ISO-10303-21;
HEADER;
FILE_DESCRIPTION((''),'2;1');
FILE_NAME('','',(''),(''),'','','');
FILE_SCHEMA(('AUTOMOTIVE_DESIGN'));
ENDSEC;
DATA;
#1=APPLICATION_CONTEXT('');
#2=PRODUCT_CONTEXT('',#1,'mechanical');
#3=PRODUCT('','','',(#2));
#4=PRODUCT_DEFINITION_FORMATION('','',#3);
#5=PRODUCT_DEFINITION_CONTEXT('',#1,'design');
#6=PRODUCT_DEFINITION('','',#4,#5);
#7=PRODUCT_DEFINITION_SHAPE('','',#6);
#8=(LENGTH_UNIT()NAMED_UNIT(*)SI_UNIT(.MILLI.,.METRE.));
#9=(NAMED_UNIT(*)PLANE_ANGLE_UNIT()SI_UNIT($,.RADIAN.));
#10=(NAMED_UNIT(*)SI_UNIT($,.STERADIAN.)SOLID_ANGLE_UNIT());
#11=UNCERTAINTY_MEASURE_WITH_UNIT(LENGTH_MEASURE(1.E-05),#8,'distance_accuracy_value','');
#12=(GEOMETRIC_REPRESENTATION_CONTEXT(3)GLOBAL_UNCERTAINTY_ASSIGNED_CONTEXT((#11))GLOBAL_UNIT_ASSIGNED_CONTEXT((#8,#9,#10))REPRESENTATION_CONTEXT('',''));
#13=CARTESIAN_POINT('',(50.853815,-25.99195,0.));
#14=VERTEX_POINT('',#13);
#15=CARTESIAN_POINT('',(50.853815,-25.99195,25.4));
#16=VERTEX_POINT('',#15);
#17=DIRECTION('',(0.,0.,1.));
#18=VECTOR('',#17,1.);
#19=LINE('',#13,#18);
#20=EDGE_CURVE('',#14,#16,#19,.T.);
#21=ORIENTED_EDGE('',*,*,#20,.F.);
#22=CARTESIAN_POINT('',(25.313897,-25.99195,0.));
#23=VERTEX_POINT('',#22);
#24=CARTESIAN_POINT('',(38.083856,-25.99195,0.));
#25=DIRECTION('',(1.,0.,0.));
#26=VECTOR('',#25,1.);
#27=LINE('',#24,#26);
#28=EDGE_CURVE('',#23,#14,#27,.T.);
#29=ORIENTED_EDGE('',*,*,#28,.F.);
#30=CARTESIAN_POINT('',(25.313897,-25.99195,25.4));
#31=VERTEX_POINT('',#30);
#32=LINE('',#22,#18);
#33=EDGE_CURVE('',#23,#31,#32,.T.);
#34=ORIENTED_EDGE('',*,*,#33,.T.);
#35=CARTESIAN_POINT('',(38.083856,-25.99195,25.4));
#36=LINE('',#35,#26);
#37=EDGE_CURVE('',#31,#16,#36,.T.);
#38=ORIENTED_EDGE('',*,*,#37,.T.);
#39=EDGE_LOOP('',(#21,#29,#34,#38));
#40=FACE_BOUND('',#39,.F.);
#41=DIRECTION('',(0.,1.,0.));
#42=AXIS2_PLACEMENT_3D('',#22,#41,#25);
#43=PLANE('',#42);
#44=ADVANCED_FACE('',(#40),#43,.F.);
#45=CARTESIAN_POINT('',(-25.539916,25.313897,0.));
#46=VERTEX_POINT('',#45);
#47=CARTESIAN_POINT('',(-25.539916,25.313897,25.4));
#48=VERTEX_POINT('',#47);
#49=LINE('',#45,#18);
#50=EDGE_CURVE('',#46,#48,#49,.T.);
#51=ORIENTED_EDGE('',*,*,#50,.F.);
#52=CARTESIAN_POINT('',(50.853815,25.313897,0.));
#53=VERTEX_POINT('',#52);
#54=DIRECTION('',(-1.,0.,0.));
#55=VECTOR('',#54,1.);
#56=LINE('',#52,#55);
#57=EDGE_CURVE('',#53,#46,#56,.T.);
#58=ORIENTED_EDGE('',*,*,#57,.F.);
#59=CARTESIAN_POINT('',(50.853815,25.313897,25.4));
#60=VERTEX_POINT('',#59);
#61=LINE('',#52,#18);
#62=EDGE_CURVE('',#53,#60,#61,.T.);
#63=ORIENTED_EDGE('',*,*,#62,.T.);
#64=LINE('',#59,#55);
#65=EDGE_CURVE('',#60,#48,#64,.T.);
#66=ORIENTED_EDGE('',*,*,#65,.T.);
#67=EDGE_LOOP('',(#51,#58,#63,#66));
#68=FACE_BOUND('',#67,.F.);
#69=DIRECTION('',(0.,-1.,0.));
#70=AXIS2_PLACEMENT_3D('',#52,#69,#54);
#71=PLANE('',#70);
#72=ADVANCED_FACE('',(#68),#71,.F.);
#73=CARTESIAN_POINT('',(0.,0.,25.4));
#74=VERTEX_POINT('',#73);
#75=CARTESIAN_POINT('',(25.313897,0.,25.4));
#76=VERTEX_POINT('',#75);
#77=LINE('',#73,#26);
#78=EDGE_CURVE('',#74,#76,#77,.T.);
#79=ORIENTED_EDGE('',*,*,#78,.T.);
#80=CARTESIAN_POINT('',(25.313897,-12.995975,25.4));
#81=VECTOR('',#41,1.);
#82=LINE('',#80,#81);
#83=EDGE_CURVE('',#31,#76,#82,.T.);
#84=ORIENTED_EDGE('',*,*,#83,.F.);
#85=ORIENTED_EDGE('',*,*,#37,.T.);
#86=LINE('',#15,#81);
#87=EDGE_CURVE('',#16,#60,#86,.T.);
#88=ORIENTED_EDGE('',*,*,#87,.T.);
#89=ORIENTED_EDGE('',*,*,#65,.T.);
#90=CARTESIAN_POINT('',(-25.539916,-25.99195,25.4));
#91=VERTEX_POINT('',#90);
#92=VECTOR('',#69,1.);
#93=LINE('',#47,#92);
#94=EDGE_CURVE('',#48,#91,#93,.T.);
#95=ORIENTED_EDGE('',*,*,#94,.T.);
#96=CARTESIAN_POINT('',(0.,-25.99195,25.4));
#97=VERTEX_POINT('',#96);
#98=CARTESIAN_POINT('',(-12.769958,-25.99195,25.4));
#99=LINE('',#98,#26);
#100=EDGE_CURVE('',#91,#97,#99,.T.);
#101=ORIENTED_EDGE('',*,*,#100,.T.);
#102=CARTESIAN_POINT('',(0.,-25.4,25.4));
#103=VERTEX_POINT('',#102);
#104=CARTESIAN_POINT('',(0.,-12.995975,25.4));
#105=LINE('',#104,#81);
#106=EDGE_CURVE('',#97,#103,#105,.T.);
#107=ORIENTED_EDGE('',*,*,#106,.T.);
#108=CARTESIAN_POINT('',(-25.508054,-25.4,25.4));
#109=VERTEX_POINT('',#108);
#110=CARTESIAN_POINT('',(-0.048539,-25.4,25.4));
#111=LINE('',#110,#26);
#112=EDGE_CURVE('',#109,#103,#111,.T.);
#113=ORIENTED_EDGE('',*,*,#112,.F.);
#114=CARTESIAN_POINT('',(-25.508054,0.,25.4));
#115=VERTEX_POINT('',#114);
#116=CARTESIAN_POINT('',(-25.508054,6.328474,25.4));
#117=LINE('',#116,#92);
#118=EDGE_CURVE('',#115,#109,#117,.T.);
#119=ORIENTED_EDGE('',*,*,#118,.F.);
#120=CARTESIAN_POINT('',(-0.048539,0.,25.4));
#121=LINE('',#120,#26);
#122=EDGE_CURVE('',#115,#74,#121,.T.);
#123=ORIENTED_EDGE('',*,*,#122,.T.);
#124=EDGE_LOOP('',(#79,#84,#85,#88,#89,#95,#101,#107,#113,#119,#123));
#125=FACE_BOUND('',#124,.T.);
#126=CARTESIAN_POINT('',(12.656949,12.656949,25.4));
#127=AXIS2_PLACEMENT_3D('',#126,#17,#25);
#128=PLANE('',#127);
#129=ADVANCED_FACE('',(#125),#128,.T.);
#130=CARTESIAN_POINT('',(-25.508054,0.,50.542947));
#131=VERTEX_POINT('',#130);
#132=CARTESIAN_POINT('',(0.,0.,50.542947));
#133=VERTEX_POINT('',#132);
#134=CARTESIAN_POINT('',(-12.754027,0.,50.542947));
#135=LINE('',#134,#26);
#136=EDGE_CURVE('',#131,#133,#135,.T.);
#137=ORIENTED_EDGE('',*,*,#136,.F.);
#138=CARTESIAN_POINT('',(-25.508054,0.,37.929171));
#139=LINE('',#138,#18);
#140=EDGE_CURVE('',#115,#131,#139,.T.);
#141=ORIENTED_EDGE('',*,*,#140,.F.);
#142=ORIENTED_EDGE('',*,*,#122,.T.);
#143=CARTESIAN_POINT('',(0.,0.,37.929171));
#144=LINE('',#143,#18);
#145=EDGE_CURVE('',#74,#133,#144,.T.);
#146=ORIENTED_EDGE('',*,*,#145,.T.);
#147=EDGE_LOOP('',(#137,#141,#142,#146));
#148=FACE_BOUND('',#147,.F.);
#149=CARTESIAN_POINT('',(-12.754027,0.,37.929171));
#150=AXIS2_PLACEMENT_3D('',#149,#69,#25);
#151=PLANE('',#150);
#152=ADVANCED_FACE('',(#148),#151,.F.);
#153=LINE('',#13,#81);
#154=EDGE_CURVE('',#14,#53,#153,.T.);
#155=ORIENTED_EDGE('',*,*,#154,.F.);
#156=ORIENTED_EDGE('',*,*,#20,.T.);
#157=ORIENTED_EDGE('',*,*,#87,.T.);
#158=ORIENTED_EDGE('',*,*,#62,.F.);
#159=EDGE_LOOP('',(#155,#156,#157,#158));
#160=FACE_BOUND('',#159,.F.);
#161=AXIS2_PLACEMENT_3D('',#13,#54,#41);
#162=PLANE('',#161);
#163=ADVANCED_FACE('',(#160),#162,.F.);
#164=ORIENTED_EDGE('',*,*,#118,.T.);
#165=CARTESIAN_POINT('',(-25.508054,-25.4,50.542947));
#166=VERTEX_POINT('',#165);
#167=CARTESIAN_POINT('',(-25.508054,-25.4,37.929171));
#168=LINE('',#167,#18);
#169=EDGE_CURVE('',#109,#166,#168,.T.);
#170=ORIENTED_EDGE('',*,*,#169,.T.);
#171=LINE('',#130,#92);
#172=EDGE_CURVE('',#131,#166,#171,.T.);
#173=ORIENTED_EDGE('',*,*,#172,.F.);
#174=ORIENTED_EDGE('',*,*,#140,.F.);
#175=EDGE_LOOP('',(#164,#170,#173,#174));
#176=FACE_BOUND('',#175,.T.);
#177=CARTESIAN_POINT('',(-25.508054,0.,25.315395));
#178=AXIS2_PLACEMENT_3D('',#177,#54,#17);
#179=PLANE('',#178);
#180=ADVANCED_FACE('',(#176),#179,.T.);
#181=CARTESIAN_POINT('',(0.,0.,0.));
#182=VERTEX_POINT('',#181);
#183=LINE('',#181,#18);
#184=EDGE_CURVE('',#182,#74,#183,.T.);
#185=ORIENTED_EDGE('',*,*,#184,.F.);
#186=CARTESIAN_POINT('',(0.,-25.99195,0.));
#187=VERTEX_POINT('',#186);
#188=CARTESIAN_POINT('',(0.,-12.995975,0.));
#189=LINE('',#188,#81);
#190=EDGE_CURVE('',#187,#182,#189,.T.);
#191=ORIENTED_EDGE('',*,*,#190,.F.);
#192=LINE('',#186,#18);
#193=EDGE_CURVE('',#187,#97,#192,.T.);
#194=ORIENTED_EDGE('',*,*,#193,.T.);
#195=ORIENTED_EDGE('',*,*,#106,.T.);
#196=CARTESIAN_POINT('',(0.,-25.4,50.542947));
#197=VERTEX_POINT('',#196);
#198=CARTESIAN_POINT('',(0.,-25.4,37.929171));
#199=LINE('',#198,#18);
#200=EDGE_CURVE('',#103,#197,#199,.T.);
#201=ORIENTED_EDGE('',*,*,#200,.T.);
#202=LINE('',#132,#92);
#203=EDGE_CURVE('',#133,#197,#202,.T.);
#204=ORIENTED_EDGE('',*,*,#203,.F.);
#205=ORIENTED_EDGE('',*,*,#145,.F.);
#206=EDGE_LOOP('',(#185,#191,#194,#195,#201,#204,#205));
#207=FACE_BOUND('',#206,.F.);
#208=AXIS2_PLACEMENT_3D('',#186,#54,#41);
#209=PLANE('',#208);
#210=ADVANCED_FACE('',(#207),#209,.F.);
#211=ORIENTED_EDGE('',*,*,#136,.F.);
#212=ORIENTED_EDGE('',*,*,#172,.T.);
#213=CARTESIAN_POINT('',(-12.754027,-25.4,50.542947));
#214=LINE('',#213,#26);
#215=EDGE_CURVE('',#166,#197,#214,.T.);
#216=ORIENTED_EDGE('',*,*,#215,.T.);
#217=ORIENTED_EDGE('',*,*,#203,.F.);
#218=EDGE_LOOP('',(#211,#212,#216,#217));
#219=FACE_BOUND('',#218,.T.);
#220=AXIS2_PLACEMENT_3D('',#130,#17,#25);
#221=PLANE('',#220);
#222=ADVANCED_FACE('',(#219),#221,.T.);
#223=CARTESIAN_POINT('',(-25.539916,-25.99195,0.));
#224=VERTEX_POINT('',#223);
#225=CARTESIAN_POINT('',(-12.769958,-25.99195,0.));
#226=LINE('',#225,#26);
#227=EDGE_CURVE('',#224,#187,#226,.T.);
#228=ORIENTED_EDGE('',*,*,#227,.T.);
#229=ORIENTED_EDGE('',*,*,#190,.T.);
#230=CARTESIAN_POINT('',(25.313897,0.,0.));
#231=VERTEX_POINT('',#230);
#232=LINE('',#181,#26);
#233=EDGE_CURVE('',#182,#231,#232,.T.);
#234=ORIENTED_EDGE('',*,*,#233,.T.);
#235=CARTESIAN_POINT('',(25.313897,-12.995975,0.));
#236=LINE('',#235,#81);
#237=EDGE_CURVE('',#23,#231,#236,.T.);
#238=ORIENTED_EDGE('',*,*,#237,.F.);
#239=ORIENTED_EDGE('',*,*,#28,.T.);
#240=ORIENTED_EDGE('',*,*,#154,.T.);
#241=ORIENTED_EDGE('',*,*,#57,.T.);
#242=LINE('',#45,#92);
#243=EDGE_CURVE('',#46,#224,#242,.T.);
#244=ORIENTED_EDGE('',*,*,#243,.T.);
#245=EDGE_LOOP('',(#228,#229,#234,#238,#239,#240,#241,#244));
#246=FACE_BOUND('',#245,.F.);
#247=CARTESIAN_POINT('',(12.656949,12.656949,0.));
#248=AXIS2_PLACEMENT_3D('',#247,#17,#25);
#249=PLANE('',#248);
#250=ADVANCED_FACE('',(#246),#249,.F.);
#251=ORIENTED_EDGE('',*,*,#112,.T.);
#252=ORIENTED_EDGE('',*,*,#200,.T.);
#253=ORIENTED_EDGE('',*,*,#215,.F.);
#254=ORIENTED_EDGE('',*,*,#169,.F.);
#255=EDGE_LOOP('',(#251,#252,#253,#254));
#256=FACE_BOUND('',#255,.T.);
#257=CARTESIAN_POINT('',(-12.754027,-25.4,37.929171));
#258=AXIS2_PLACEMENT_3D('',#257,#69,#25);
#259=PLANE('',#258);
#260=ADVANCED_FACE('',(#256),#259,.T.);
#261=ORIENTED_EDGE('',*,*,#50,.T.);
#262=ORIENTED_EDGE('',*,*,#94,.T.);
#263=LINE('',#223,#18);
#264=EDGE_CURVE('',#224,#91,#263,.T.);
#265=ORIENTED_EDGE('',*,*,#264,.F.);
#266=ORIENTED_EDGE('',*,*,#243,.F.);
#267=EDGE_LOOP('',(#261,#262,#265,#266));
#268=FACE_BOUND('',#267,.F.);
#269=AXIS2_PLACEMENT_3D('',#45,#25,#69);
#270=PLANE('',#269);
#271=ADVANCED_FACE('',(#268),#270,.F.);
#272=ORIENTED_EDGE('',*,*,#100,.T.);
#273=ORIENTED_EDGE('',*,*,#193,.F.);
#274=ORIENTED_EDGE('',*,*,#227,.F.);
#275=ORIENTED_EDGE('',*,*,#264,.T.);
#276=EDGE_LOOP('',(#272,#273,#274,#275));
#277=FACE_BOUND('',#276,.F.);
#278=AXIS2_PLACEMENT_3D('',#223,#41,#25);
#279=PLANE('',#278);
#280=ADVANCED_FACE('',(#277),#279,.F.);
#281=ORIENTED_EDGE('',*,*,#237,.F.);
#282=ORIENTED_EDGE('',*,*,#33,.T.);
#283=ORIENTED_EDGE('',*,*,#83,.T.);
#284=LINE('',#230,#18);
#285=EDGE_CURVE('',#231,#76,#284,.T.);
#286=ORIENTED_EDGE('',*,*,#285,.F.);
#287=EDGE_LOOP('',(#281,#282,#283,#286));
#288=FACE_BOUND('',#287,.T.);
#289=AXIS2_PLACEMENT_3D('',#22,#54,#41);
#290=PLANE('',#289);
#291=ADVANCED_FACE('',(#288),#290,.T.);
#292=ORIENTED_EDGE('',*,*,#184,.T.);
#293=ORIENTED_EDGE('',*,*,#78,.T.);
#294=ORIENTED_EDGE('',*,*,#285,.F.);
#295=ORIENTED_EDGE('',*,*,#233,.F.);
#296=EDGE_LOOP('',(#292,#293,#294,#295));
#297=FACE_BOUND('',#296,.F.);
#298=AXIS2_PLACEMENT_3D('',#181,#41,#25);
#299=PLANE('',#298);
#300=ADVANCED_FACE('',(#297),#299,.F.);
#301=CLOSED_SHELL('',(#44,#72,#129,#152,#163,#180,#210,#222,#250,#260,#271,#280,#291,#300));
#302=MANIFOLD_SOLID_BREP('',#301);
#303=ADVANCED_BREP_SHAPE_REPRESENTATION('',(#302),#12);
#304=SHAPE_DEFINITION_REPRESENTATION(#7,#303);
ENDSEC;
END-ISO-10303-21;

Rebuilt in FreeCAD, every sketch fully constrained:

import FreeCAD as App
import Part
import Sketcher

V = App.Vector
Q = App.Units.Quantity

doc = App.newDocument("Part")
params = doc.addObject("Spreadsheet::Sheet", "Params")
for row, (alias, value) in enumerate([
    ("pad1_length", "1 in"),
    ("pad2_length", "1 in"),
], start=1):
    params.set(f"A{row}", alias)
    params.set(f"B{row}", "=" + value)
    params.setAlias(f"B{row}", alias)

body = doc.addObject("PartDesign::Body", "Body")

sketch1 = doc.addObject("Sketcher::SketchObject", "Sketch")
body.addObject(sketch1)
sketch1.AttachmentSupport = (doc.XY_Plane, [""])
sketch1.MapMode = "FlatFace"
sketch1.addGeometry(Part.LineSegment(V(0, 0, 0), V(25, 0, 0)), False)
sketch1.addGeometry(Part.LineSegment(V(25, 0, 0), V(25, -26, 0)), False)
sketch1.addGeometry(Part.LineSegment(V(25, -26, 0), V(51, -26, 0)), False)
sketch1.addGeometry(Part.LineSegment(V(51, -26, 0), V(51, 25, 0)), False)
sketch1.addGeometry(Part.LineSegment(V(51, 25, 0), V(-26, 25, 0)), False)
sketch1.addGeometry(Part.LineSegment(V(-26, 25, 0), V(-26, -26, 0)), False)
sketch1.addGeometry(Part.LineSegment(V(-26, -26, 0), V(0, -26, 0)), False)
sketch1.addGeometry(Part.LineSegment(V(0, -26, 0), V(0, 0, 0)), False)
sketch1.addConstraint(Sketcher.Constraint("Coincident", 0, 2, 1, 1))
sketch1.addConstraint(Sketcher.Constraint("Coincident", 1, 2, 2, 1))
sketch1.addConstraint(Sketcher.Constraint("Coincident", 2, 2, 3, 1))
sketch1.addConstraint(Sketcher.Constraint("Coincident", 3, 2, 4, 1))
sketch1.addConstraint(Sketcher.Constraint("Coincident", 4, 2, 5, 1))
sketch1.addConstraint(Sketcher.Constraint("Coincident", 5, 2, 6, 1))
sketch1.addConstraint(Sketcher.Constraint("Coincident", 6, 2, 7, 1))
sketch1.addConstraint(Sketcher.Constraint("Coincident", 7, 2, 0, 1))
sketch1.addConstraint(Sketcher.Constraint("Horizontal", 0))
sketch1.addConstraint(Sketcher.Constraint("Vertical", 1))
sketch1.addConstraint(Sketcher.Constraint("Horizontal", 2))
sketch1.addConstraint(Sketcher.Constraint("Vertical", 3))
sketch1.addConstraint(Sketcher.Constraint("Horizontal", 4))
sketch1.addConstraint(Sketcher.Constraint("Vertical", 5))
sketch1.addConstraint(Sketcher.Constraint("Horizontal", 6))
sketch1.addConstraint(Sketcher.Constraint("Vertical", 7))
sketch1.addConstraint(Sketcher.Constraint("Coincident", 7, 2, -1, 1))
sketch1.addConstraint(Sketcher.Constraint("Horizontal", 2, 2, 5, 2))
sketch1.addConstraint(Sketcher.Constraint("Equal", 2, 6))
sketch1.addConstraint(Sketcher.Constraint("DistanceX", 4, 2, 4, 1, Q("76.393731 mm")))
sketch1.addConstraint(Sketcher.Constraint("DistanceY", 1, 2, 1, 1, Q("25.99195 mm")))
sketch1.addConstraint(Sketcher.Constraint("DistanceX", 0, 1, 0, 2, Q("25.313897 mm")))
sketch1.addConstraint(Sketcher.Constraint("DistanceY", 3, 1, 3, 2, Q("51.305847 mm")))
pad1 = doc.addObject("PartDesign::Pad", "Pad")
body.addObject(pad1)
pad1.Profile = sketch1
pad1.setExpression("Length", "Params.pad1_length")

sketch2 = doc.addObject("Sketcher::SketchObject", "Sketch001")
body.addObject(sketch2)
sketch2.AttachmentSupport = (doc.XZ_Plane, [""])
sketch2.MapMode = "FlatFace"
sketch2.addGeometry(Part.LineSegment(V(-26, 51, 0), V(-26, 25, 0)), False)
sketch2.addGeometry(Part.LineSegment(V(-26, 25, 0), V(0, 25, 0)), False)
sketch2.addGeometry(Part.LineSegment(V(0, 25, 0), V(0, 51, 0)), False)
sketch2.addGeometry(Part.LineSegment(V(0, 51, 0), V(-26, 51, 0)), False)
sketch2.addConstraint(Sketcher.Constraint("Coincident", 0, 2, 1, 1))
sketch2.addConstraint(Sketcher.Constraint("Coincident", 1, 2, 2, 1))
sketch2.addConstraint(Sketcher.Constraint("Coincident", 2, 2, 3, 1))
sketch2.addConstraint(Sketcher.Constraint("Coincident", 3, 2, 0, 1))
sketch2.addConstraint(Sketcher.Constraint("Vertical", 0))
sketch2.addConstraint(Sketcher.Constraint("Horizontal", 1))
sketch2.addConstraint(Sketcher.Constraint("Vertical", 2))
sketch2.addConstraint(Sketcher.Constraint("Horizontal", 3))
sketch2.addConstraint(Sketcher.Constraint("PointOnObject", 1, 2, -2))
sketch2.addConstraint(Sketcher.Constraint("DistanceX", 1, 1, 1, 2, Q("25.508054 mm")))
sketch2.addConstraint(Sketcher.Constraint("DistanceY", 0, 2, 0, 1, Q("25.227552 mm")))
sketch2.addConstraint(Sketcher.Constraint("DistanceY", -1, 1, 0, 2, Q("25.315395 mm")))
pad2 = doc.addObject("PartDesign::Pad", "Pad001")
body.addObject(pad2)
pad2.Profile = sketch2
pad2.setExpression("Length", "Params.pad2_length")

doc.recompute()
